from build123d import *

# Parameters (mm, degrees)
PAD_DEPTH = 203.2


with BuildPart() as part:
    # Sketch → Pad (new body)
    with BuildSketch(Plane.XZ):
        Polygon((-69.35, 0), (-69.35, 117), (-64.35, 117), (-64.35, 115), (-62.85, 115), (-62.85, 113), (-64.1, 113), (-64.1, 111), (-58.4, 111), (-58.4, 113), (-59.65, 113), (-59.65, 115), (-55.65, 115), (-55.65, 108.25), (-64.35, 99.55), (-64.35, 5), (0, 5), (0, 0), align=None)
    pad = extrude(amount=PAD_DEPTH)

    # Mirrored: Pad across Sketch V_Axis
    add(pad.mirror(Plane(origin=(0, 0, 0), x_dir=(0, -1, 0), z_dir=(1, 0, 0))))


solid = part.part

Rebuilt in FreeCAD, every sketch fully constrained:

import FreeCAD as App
import Part
import Sketcher
from FreeCAD import Vector
Q = App.Units.Quantity

doc = App.newDocument("Part")
body = doc.addObject("PartDesign::Body", "Body")

sketch1 = body.newObject("Sketcher::SketchObject", "Sketch")
sketch1.AttachmentSupport = (doc.getObject("XZ_Plane"), [""])
sketch1.MapMode = "FlatFace"
sketch1.addGeometry([
    Part.LineSegment(Vector(-69.3, 117, 0), Vector(-69.3, 0, 0)),
    Part.LineSegment(Vector(-69.3, 0, 0), Vector(0, 0, 0)),
    Part.LineSegment(Vector(0, 0, 0), Vector(0, 5, 0)),
    Part.LineSegment(Vector(0, 5, 0), Vector(-64.3, 5, 0)),
    Part.LineSegment(Vector(-64.3, 5, 0), Vector(-64.3, 99.5, 0)),
    Part.LineSegment(Vector(-64.3, 99.5, 0), Vector(-55.6, 108.2, 0)),
    Part.LineSegment(Vector(-55.6, 108.2, 0), Vector(-55.6, 115, 0)),
    Part.LineSegment(Vector(-55.6, 115, 0), Vector(-59.6, 115, 0)),
    Part.LineSegment(Vector(-59.6, 115, 0), Vector(-59.6, 113, 0)),
    Part.LineSegment(Vector(-59.6, 113, 0), Vector(-58.4, 113, 0)),
    Part.LineSegment(Vector(-58.4, 113, 0), Vector(-58.4, 111, 0)),
    Part.LineSegment(Vector(-58.4, 111, 0), Vector(-64.1, 111, 0)),
    Part.LineSegment(Vector(-64.1, 111, 0), Vector(-64.1, 113, 0)),
    Part.LineSegment(Vector(-64.1, 113, 0), Vector(-62.9, 113, 0)),
    Part.LineSegment(Vector(-62.9, 113, 0), Vector(-62.9, 115, 0)),
    Part.LineSegment(Vector(-62.9, 115, 0), Vector(-64.3, 115, 0)),
    Part.LineSegment(Vector(-64.3, 115, 0), Vector(-64.3, 117, 0)),
    Part.LineSegment(Vector(-64.3, 117, 0), Vector(-69.3, 117, 0)),
], False)
sketch1.addConstraint([
    Sketcher.Constraint("Coincident", 0, 2, 1, 1),
    Sketcher.Constraint("Coincident", 1, 2, 2, 1),
    Sketcher.Constraint("Coincident", 2, 2, 3, 1),
    Sketcher.Constraint("Coincident", 3, 2, 4, 1),
    Sketcher.Constraint("Coincident", 4, 2, 5, 1),
    Sketcher.Constraint("Coincident", 5, 2, 6, 1),
    Sketcher.Constraint("Coincident", 6, 2, 7, 1),
    Sketcher.Constraint("Coincident", 7, 2, 8, 1),
    Sketcher.Constraint("Coincident", 8, 2, 9, 1),
    Sketcher.Constraint("Coincident", 9, 2, 10, 1),
    Sketcher.Constraint("Coincident", 10, 2, 11, 1),
    Sketcher.Constraint("Coincident", 11, 2, 12, 1),
    Sketcher.Constraint("Coincident", 12, 2, 13, 1),
    Sketcher.Constraint("Coincident", 13, 2, 14, 1),
    Sketcher.Constraint("Coincident", 14, 2, 15, 1),
    Sketcher.Constraint("Coincident", 15, 2, 16, 1),
    Sketcher.Constraint("Coincident", 16, 2, 17, 1),
    Sketcher.Constraint("Coincident", 17, 2, 0, 1),
    Sketcher.Constraint("Vertical", 0),
    Sketcher.Constraint("Horizontal", 1),
    Sketcher.Constraint("Vertical", 2),
    Sketcher.Constraint("Horizontal", 3),
    Sketcher.Constraint("Vertical", 4),
    Sketcher.Constraint("Vertical", 6),
    Sketcher.Constraint("Horizontal", 7),
    Sketcher.Constraint("Vertical", 8),
    Sketcher.Constraint("Horizontal", 9),
    Sketcher.Constraint("Vertical", 10),
    Sketcher.Constraint("Horizontal", 11),
    Sketcher.Constraint("Vertical", 12),
    Sketcher.Constraint("Horizontal", 13),
    Sketcher.Constraint("Vertical", 14),
    Sketcher.Constraint("Horizontal", 15),
    Sketcher.Constraint("Vertical", 16),
    Sketcher.Constraint("Horizontal", 17),
    Sketcher.Constraint("Coincident", 1, 2, -1, 1),
    Sketcher.Constraint("Horizontal", 9, 2, 12, 2),
    Sketcher.Constraint("Horizontal", 7, 2, 14, 2),
    Sketcher.Constraint("Vertical", 4, 2, 15, 2),
    Sketcher.Constraint("Equal", 9, 13),
    Sketcher.Constraint("Equal", 17, 2),
    Sketcher.Constraint("Equal", 8, 10),
    Sketcher.Constraint("Equal", 14, 16),
    Sketcher.Constraint("DistanceX", 7, 2, 7, 1, 4.0),
    Sketcher.Constraint("DistanceX", 17, 2, 17, 1, 5.0),
    Sketcher.Constraint("DistanceY", 0, 2, 0, 1, 117.0),
    Sketcher.Constraint("DistanceY", 8, 2, 8, 1, 2.0),
    Sketcher.Constraint("Angle", 5, Q("45 deg")),
    Sketcher.Constraint("DistanceX", 11, 2, 11, 1, 5.7),
    Sketcher.Constraint("DistanceX", 15, 2, 15, 1, 1.5),
    Sketcher.Constraint("DistanceX", 1, 1, 1, 2, 69.35),
    Sketcher.Constraint("DistanceX", 9, 1, 9, 2, 1.25),
    Sketcher.Constraint("DistanceY", 4, 1, 4, 2, 94.55),
])
pad1 = body.newObject("PartDesign::Pad", "Pad")
pad1.Profile = sketch1
pad1.Length = 203.2
doc.recompute()

mirrored = body.newObject("PartDesign::Mirrored", "Mirrored")
mirrored.Originals = [pad1]
mirrored.MirrorPlane = (doc.getObject("YZ_Plane"), [""])
body.Tip = mirrored

doc.recompute()
